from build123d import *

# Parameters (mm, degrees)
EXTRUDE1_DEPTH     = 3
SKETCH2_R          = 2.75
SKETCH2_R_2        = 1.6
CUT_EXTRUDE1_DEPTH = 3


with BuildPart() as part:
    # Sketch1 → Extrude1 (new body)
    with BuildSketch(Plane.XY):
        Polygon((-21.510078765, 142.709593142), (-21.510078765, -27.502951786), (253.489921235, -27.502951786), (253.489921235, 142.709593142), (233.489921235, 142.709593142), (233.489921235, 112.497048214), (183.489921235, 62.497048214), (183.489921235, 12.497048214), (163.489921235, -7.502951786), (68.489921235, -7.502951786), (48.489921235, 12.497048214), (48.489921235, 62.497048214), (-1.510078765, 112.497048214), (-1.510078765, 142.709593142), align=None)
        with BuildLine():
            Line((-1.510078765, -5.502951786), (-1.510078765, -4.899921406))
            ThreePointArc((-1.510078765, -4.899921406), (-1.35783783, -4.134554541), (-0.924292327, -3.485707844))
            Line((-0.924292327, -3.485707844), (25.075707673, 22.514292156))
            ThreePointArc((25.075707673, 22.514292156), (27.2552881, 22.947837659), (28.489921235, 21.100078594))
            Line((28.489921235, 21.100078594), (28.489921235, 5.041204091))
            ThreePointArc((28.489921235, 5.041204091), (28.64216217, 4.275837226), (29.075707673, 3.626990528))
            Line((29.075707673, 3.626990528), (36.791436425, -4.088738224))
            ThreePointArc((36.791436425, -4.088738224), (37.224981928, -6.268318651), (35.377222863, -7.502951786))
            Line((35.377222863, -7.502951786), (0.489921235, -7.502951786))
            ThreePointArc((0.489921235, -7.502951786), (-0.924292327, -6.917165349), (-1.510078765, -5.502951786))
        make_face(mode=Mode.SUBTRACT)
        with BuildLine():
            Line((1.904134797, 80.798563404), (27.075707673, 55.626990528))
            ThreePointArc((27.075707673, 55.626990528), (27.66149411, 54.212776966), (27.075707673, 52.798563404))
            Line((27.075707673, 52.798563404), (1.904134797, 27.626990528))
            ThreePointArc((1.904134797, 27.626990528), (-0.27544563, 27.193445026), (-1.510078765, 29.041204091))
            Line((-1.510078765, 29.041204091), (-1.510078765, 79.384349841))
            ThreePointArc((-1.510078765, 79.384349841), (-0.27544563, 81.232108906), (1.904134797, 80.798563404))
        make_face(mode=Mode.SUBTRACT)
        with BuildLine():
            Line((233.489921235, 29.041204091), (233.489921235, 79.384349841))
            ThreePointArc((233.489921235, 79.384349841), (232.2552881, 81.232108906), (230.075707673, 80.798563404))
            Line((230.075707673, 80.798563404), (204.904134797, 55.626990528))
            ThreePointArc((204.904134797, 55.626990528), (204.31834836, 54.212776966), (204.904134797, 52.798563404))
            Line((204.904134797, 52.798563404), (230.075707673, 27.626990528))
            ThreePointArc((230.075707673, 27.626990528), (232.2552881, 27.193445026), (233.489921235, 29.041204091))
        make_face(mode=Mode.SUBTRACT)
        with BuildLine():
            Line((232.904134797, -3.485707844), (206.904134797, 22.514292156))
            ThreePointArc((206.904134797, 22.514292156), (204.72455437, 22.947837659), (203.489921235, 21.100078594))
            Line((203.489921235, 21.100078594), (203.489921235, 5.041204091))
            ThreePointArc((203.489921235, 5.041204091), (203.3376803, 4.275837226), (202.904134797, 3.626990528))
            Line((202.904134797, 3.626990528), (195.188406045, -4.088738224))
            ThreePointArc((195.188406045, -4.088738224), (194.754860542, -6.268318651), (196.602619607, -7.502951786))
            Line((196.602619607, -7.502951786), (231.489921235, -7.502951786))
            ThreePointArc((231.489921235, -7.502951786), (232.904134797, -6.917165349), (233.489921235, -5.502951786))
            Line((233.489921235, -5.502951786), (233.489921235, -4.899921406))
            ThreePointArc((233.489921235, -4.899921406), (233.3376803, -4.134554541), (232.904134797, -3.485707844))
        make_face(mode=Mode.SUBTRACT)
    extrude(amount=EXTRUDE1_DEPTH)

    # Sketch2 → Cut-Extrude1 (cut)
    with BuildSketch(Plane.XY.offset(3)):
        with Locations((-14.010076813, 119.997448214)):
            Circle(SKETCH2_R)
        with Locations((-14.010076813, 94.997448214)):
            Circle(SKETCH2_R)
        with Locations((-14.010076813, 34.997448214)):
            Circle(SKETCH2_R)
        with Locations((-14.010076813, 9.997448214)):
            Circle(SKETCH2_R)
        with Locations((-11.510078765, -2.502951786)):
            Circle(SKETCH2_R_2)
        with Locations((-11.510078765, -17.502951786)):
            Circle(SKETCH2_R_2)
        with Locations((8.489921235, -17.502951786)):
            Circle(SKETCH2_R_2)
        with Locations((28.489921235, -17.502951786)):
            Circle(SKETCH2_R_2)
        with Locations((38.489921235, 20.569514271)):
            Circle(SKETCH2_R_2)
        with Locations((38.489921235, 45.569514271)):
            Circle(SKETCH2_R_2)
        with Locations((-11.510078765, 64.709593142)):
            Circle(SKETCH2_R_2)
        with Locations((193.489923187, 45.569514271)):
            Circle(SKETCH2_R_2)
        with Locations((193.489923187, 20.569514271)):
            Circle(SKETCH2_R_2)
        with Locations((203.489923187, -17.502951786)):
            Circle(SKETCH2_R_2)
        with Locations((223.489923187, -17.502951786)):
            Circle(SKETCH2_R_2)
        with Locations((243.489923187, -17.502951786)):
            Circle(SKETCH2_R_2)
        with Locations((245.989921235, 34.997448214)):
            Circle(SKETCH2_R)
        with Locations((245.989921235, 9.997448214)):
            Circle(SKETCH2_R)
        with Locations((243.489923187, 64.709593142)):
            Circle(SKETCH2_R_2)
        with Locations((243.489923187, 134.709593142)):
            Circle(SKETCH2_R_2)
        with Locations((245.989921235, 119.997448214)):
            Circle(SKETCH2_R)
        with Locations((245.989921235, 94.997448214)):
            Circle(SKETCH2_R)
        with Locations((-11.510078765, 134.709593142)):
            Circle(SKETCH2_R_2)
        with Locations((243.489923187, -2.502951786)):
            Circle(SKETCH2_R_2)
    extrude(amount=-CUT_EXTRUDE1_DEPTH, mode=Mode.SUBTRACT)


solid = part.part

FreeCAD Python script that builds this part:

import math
import FreeCAD as App
import Part
import Sketcher

V = App.Vector
Q = App.Units.Quantity

doc = App.newDocument("Part")
body = doc.addObject("PartDesign::Body", "Body")

sketch1 = body.newObject("Sketcher::SketchObject", "Sketch")
sketch1.AttachmentSupport = (doc.getObject("XY_Plane"), [""])
sketch1.MapMode = "FlatFace"
sketch1.addGeometry([
    Part.LineSegment(V(-21.5, 142.7, 0), V(-21.5, -27.5, 0)),
    Part.LineSegment(V(-21.5, -27.5, 0), V(253.5, -27.5, 0)),
    Part.LineSegment(V(253.5, -27.5, 0), V(253.5, 142.7, 0)),
    Part.LineSegment(V(253.5, 142.7, 0), V(233.5, 142.7, 0)),
    Part.LineSegment(V(233.5, 142.7, 0), V(233.5, 112.5, 0)),
    Part.LineSegment(V(233.5, 112.5, 0), V(183.5, 62.5, 0)),
    Part.LineSegment(V(183.5, 62.5, 0), V(183.5, 12.5, 0)),
    Part.LineSegment(V(183.5, 12.5, 0), V(163.5, -7.5, 0)),
    Part.LineSegment(V(163.5, -7.5, 0), V(68.5, -7.5, 0)),
    Part.LineSegment(V(68.5, -7.5, 0), V(48.5, 12.5, 0)),
    Part.LineSegment(V(48.5, 12.5, 0), V(48.5, 62.5, 0)),
    Part.LineSegment(V(48.5, 62.5, 0), V(-1.5, 112.5, 0)),
    Part.LineSegment(V(-1.5, 112.5, 0), V(-1.5, 142.7, 0)),
    Part.LineSegment(V(-1.5, 142.7, 0), V(-21.5, 142.7, 0)),
    Part.ArcOfCircle(Part.Circle(V(0.5, -5.5, 0), V(0, 0, 1), 2), math.radians(180), math.radians(270)),
    Part.LineSegment(V(-1.5, -5.5, 0), V(-1.5, -4.9, 0)),
    Part.ArcOfCircle(Part.Circle(V(0.5, -4.9, 0), V(0, 0, 1), 2), math.radians(135), math.radians(180)),
    Part.LineSegment(V(-0.9, -3.5, 0), V(25.1, 22.5, 0)),
    Part.ArcOfCircle(Part.Circle(V(26.5, 21.1, 0), V(0, 0, 1), 2), math.radians(0), math.radians(135)),
    Part.LineSegment(V(28.5, 21.1, 0), V(28.5, 5, 0)),
    Part.ArcOfCircle(Part.Circle(V(30.5, 5, 0), V(0, 0, 1), 2), math.radians(180), math.radians(225)),
    Part.LineSegment(V(29.1, 3.6, 0), V(36.8, -4.1, 0)),
    Part.ArcOfCircle(Part.Circle(V(35.4, -5.5, 0), V(0, 0, 1), 2), math.radians(-90), math.radians(45)),
    Part.LineSegment(V(35.4, -7.5, 0), V(0.5, -7.5, 0)),
    Part.LineSegment(V(206.9, 22.5, 0), V(232.9, -3.5, 0)),
    Part.ArcOfCircle(Part.Circle(V(231.5, -4.9, 0), V(0, 0, 1), 2), math.radians(0), math.radians(45)),
    Part.LineSegment(V(233.5, -4.9, 0), V(233.5, -5.5, 0)),
    Part.ArcOfCircle(Part.Circle(V(231.5, -5.5, 0), V(0, 0, 1), 2), math.radians(-90), math.radians(0)),
    Part.LineSegment(V(231.5, -7.5, 0), V(196.6, -7.5, 0)),
    Part.ArcOfCircle(Part.Circle(V(196.6, -5.5, 0), V(0, 0, 1), 2), math.radians(135), math.radians(270)),
    Part.LineSegment(V(195.2, -4.1, 0), V(202.9, 3.6, 0)),
    Part.ArcOfCircle(Part.Circle(V(201.5, 5, 0), V(0, 0, 1), 2), math.radians(-45), math.radians(0)),
    Part.LineSegment(V(203.5, 5, 0), V(203.5, 21.1, 0)),
    Part.ArcOfCircle(Part.Circle(V(205.5, 21.1, 0), V(0, 0, 1), 2), math.radians(45), math.radians(180)),
    Part.ArcOfCircle(Part.Circle(V(0.5, 79.4, 0), V(0, 0, 1), 2), math.radians(45), math.radians(180)),
    Part.LineSegment(V(1.9, 80.8, 0), V(27.1, 55.6, 0)),
    Part.ArcOfCircle(Part.Circle(V(25.7, 54.2, 0), V(0, 0, 1), 2), math.radians(-45), math.radians(45)),
    Part.LineSegment(V(27.1, 52.8, 0), V(1.9, 27.6, 0)),
    Part.ArcOfCircle(Part.Circle(V(0.5, 29, 0), V(0, 0, 1), 2), math.radians(180), math.radians(315)),
    Part.LineSegment(V(-1.5, 29, 0), V(-1.5, 79.4, 0)),
    Part.LineSegment(V(233.5, 79.4, 0), V(233.5, 29, 0)),
    Part.ArcOfCircle(Part.Circle(V(231.5, 29, 0), V(0, 0, 1), 2), math.radians(-135), math.radians(0)),
    Part.LineSegment(V(230.1, 27.6, 0), V(204.9, 52.8, 0)),
    Part.ArcOfCircle(Part.Circle(V(206.3, 54.2, 0), V(0, 0, 1), 2), math.radians(135), math.radians(225)),
    Part.LineSegment(V(204.9, 55.6, 0), V(230.1, 80.8, 0)),
    Part.ArcOfCircle(Part.Circle(V(231.5, 79.4, 0), V(0, 0, 1), 2), math.radians(0), math.radians(135)),
], False)
sketch1.addConstraint([
    Sketcher.Constraint("Coincident", 0, 2, 1, 1),
    Sketcher.Constraint("Coincident", 1, 2, 2, 1),
    Sketcher.Constraint("Coincident", 2, 2, 3, 1),
    Sketcher.Constraint("Coincident", 3, 2, 4, 1),
    Sketcher.Constraint("Coincident", 4, 2, 5, 1),
    Sketcher.Constraint("Coincident", 5, 2, 6, 1),
    Sketcher.Constraint("Coincident", 6, 2, 7, 1),
    Sketcher.Constraint("Coincident", 7, 2, 8, 1),
    Sketcher.Constraint("Coincident", 8, 2, 9, 1),
    Sketcher.Constraint("Coincident", 9, 2, 10, 1),
    Sketcher.Constraint("Coincident", 10, 2, 11, 1),
    Sketcher.Constraint("Coincident", 11, 2, 12, 1),
    Sketcher.Constraint("Coincident", 12, 2, 13, 1),
    Sketcher.Constraint("Coincident", 13, 2, 0, 1),
    Sketcher.Constraint("Tangent", 14, 1, 15, 1),
    Sketcher.Constraint("Tangent", 15, 2, 16, 2),
    Sketcher.Constraint("Tangent", 16, 1, 17, 1),
    Sketcher.Constraint("Tangent", 17, 2, 18, 2),
    Sketcher.Constraint("Tangent", 18, 1, 19, 1),
    Sketcher.Constraint("Tangent", 19, 2, 20, 1),
    Sketcher.Constraint("Tangent", 20, 2, 21, 1),
    Sketcher.Constraint("Tangent", 21, 2, 22, 2),
    Sketcher.Constraint("Tangent", 22, 1, 23, 1),
    Sketcher.Constraint("Tangent", 23, 2, 14, 2),
    Sketcher.Constraint("Tangent", 24, 2, 25, 2),
    Sketcher.Constraint("Tangent", 25, 1, 26, 1),
    Sketcher.Constraint("Tangent", 26, 2, 27, 2),
    Sketcher.Constraint("Tangent", 27, 1, 28, 1),
    Sketcher.Constraint("Tangent", 28, 2, 29, 2),
    Sketcher.Constraint("Tangent", 29, 1, 30, 1),
    Sketcher.Constraint("Tangent", 30, 2, 31, 1),
    Sketcher.Constraint("Tangent", 31, 2, 32, 1),
    Sketcher.Constraint("Tangent", 32, 2, 33, 2),
    Sketcher.Constraint("Tangent", 33, 1, 24, 1),
    Sketcher.Constraint("Tangent", 34, 1, 35, 1),
    Sketcher.Constraint("Tangent", 35, 2, 36, 2),
    Sketcher.Constraint("Tangent", 36, 1, 37, 1),
    Sketcher.Constraint("Tangent", 37, 2, 38, 2),
    Sketcher.Constraint("Tangent", 38, 1, 39, 1),
    Sketcher.Constraint("Tangent", 39, 2, 34, 2),
    Sketcher.Constraint("Tangent", 40, 2, 41, 2),
    Sketcher.Constraint("Tangent", 41, 1, 42, 1),
    Sketcher.Constraint("Tangent", 42, 2, 43, 2),
    Sketcher.Constraint("Tangent", 43, 1, 44, 1),
    Sketcher.Constraint("Tangent", 44, 2, 45, 2),
    Sketcher.Constraint("Tangent", 45, 1, 40, 1),
    Sketcher.Constraint("Vertical", 0),
    Sketcher.Constraint("Horizontal", 1),
    Sketcher.Constraint("Vertical", 2),
    Sketcher.Constraint("Horizontal", 3),
    Sketcher.Constraint("Vertical", 4),
    Sketcher.Constraint("Vertical", 6),
    Sketcher.Constraint("Horizontal", 8),
    Sketcher.Constraint("Vertical", 10),
    Sketcher.Constraint("Vertical", 12),
    Sketcher.Constraint("Horizontal", 13),
    Sketcher.Constraint("Vertical", 15),
    Sketcher.Constraint("Vertical", 19),
    Sketcher.Constraint("Horizontal", 23),
    Sketcher.Constraint("Vertical", 26),
    Sketcher.Constraint("Horizontal", 28),
    Sketcher.Constraint("Vertical", 32),
    Sketcher.Constraint("Vertical", 39),
    Sketcher.Constraint("Vertical", 40),
    Sketcher.Constraint("Equal", 14, 16),
    Sketcher.Constraint("Equal", 16, 18),
    Sketcher.Constraint("Equal", 18, 20),
    Sketcher.Constraint("Equal", 20, 22),
    Sketcher.Constraint("Equal", 22, 25),
    Sketcher.Constraint("Equal", 25, 27),
    Sketcher.Constraint("Equal", 27, 29),
    Sketcher.Constraint("Equal", 29, 31),
    Sketcher.Constraint("Equal", 31, 33),
    Sketcher.Constraint("Equal", 33, 34),
    Sketcher.Constraint("Equal", 34, 36),
    Sketcher.Constraint("Equal", 36, 38),
    Sketcher.Constraint("Equal", 38, 41),
    Sketcher.Constraint("Equal", 41, 43),
    Sketcher.Constraint("Equal", 43, 45),
    Sketcher.Constraint("Parallel", 5, 7),
    Sketcher.Constraint("Perpendicular", 7, 9),
    Sketcher.Constraint("Parallel", 9, 11),
    Sketcher.Constraint("Perpendicular", 11, 17),
    Sketcher.Constraint("Perpendicular", 17, 21),
    Sketcher.Constraint("Parallel", 21, 24),
    Sketcher.Constraint("Perpendicular", 24, 30),
    Sketcher.Constraint("Perpendicular", 30, 35),
    Sketcher.Constraint("Perpendicular", 35, 37),
    Sketcher.Constraint("Perpendicular", 37, 42),
    Sketcher.Constraint("Perpendicular", 42, 44),
    Sketcher.Constraint("Horizontal", 16, 3, 25, 3),
    Sketcher.Constraint("Horizontal", 22, 3, 27, 3),
    Sketcher.Constraint("Horizontal", 20, 3, 31, 3),
    Sketcher.Constraint("Horizontal", 18, 3, 33, 3),
    Sketcher.Constraint("Horizontal", 38, 3, 41, 3),
    Sketcher.Constraint("Horizontal", 36, 3, 43, 3),
    Sketcher.Constraint("Horizontal", 34, 3, 45, 3),
    Sketcher.Constraint("Horizontal", 6, 2, 9, 2),
    Sketcher.Constraint("Horizontal", 5, 2, 10, 2),
    Sketcher.Constraint("Horizontal", 4, 2, 11, 2),
    Sketcher.Constraint("Horizontal", 3, 2, 12, 2),
    Sketcher.Constraint("Horizontal", 8, 2, 22, 1),
    Sketcher.Constraint("Vertical", 16, 3, 34, 3),
    Sketcher.Constraint("Vertical", 27, 3, 41, 3),
    Sketcher.Constraint("Vertical", 12, 2, 14, 1),
    Sketcher.Constraint("Vertical", 4, 2, 25, 1),
    Sketcher.Constraint("Equal", 3, 13),
    Sketcher.Constraint("Radius", 14, Q("2 mm")),
    Sketcher.Constraint("DistanceX", 1, 1, 1, 2, Q("275 mm")),
    Sketcher.Constraint("DistanceX", 3, 2, 3, 1, Q("20 mm")),
    Sketcher.Constraint("DistanceX", 8, 2, 8, 1, Q("95 mm")),
    Sketcher.Constraint("DistanceY", 6, 2, 6, 1, Q("50 mm")),
    Sketcher.Constraint("DistanceX", 23, 2, 23, 1, Q("34.887302 mm")),
    Sketcher.Constraint("DistanceY", 15, 1, 15, 2, Q("0.60303 mm")),
    Sketcher.Constraint("Distance", 5, Q("70.710678 mm")),
    Sketcher.Constraint("Distance", 21, Q("10.911688 mm")),
    Sketcher.Constraint("Distance", 35, Q("35.59798 mm")),
    Sketcher.Constraint("DistanceY", 0, 2, 0, 1, Q("170.212545 mm")),
    Sketcher.Constraint("DistanceY", 4, 2, 4, 1, Q("30.212545 mm")),
    Sketcher.Constraint("DistanceX", -1, 1, 14, 3, Q("0.489921 mm")),
    Sketcher.Constraint("DistanceY", 14, 3, -1, 1, Q("5.502952 mm")),
    Sketcher.Constraint("DistanceY", -1, 1, 34, 3, Q("79.38435 mm")),
])
pad1 = body.newObject("PartDesign::Pad", "Pad")
pad1.Profile = sketch1
pad1.Length = 3

sketch2 = body.newObject("Sketcher::SketchObject", "Sketch001")
sketch2.AttachmentSupport = (doc.getObject("XY_Plane"), [""])
sketch2.MapMode = "FlatFace"
sketch2.AttachmentOffset = App.Placement(V(0, 0, 3), App.Rotation())
sketch2.addGeometry([
    Part.Circle(V(-14, 120, 0), V(0, 0, 1), 2.8),
    Part.Circle(V(-14, 95, 0), V(0, 0, 1), 2.8),
    Part.Circle(V(-14, 35, 0), V(0, 0, 1), 2.8),
    Part.Circle(V(-14, 10, 0), V(0, 0, 1), 2.8),
    Part.Circle(V(-11.5, -2.5, 0), V(0, 0, 1), 1.6),
    Part.Circle(V(-11.5, -17.5, 0), V(0, 0, 1), 1.6),
    Part.Circle(V(8.5, -17.5, 0), V(0, 0, 1), 1.6),
    Part.Circle(V(28.5, -17.5, 0), V(0, 0, 1), 1.6),
    Part.Circle(V(38.5, 20.6, 0), V(0, 0, 1), 1.6),
    Part.Circle(V(38.5, 45.6, 0), V(0, 0, 1), 1.6),
    Part.Circle(V(-11.5, 64.7, 0), V(0, 0, 1), 1.6),
    Part.Circle(V(193.5, 45.6, 0), V(0, 0, 1), 1.6),
    Part.Circle(V(193.5, 20.6, 0), V(0, 0, 1), 1.6),
    Part.Circle(V(203.5, -17.5, 0), V(0, 0, 1), 1.6),
    Part.Circle(V(223.5, -17.5, 0), V(0, 0, 1), 1.6),
    Part.Circle(V(243.5, -17.5, 0), V(0, 0, 1), 1.6),
    Part.Circle(V(246, 35, 0), V(0, 0, 1), 2.8),
    Part.Circle(V(246, 10, 0), V(0, 0, 1), 2.8),
    Part.Circle(V(243.5, 64.7, 0), V(0, 0, 1), 1.6),
    Part.Circle(V(243.5, 134.7, 0), V(0, 0, 1), 1.6),
    Part.Circle(V(246, 120, 0), V(0, 0, 1), 2.8),
    Part.Circle(V(246, 95, 0), V(0, 0, 1), 2.8),
    Part.Circle(V(-11.5, 134.7, 0), V(0, 0, 1), 1.6),
    Part.Circle(V(243.5, -2.5, 0), V(0, 0, 1), 1.6),
], False)
sketch2.addConstraint([
    Sketcher.Constraint("Equal", 0, 1),
    Sketcher.Constraint("Equal", 1, 2),
    Sketcher.Constraint("Equal", 2, 3),
    Sketcher.Constraint("Equal", 4, 5),
    Sketcher.Constraint("Equal", 5, 6),
    Sketcher.Constraint("Equal", 6, 7),
    Sketcher.Constraint("Equal", 7, 8),
    Sketcher.Constraint("Equal", 8, 9),
    Sketcher.Constraint("Equal", 9, 10),
    Sketcher.Constraint("Equal", 10, 11),
    Sketcher.Constraint("Equal", 11, 12),
    Sketcher.Constraint("Equal", 12, 13),
    Sketcher.Constraint("Equal", 13, 14),
    Sketcher.Constraint("Equal", 14, 15),
    Sketcher.Constraint("Equal", 3, 16),
    Sketcher.Constraint("Equal", 16, 17),
    Sketcher.Constraint("Equal", 15, 18),
    Sketcher.Constraint("Equal", 18, 19),
    Sketcher.Constraint("Equal", 17, 20),
    Sketcher.Constraint("Equal", 20, 21),
    Sketcher.Constraint("Equal", 19, 22),
    Sketcher.Constraint("Equal", 22, 23),
    Sketcher.Constraint("Horizontal", 5, 3, 6, 3),
    Sketcher.Constraint("Horizontal", 6, 3, 7, 3),
    Sketcher.Constraint("Horizontal", 9, 3, 11, 3),
    Sketcher.Constraint("Horizontal", 8, 3, 12, 3),
    Sketcher.Constraint("Horizontal", 7, 3, 13, 3),
    Sketcher.Constraint("Horizontal", 13, 3, 14, 3),
    Sketcher.Constraint("Horizontal", 14, 3, 15, 3),
    Sketcher.Constraint("Horizontal", 2, 3, 16, 3),
    Sketcher.Constraint("Horizontal", 3, 3, 17, 3),
    Sketcher.Constraint("Horizontal", 10, 3, 18, 3),
    Sketcher.Constraint("Horizontal", 0, 3, 20, 3),
    Sketcher.Constraint("Horizontal", 1, 3, 21, 3),
    Sketcher.Constraint("Horizontal", 19, 3, 22, 3),
    Sketcher.Constraint("Horizontal", 4, 3, 23, 3),
    Sketcher.Constraint("Vertical", 0, 3, 1, 3),
    Sketcher.Constraint("Vertical", 1, 3, 2, 3),
    Sketcher.Constraint("Vertical", 2, 3, 3, 3),
    Sketcher.Constraint("Vertical", 4, 3, 5, 3),
    Sketcher.Constraint("Vertical", 8, 3, 9, 3),
    Sketcher.Constraint("Vertical", 5, 3, 10, 3),
    Sketcher.Constraint("Vertical", 11, 3, 12, 3),
    Sketcher.Constraint("Vertical", 16, 3, 17, 3),
    Sketcher.Constraint("Vertical", 15, 3, 18, 3),
    Sketcher.Constraint("Vertical", 18, 3, 19, 3),
    Sketcher.Constraint("Vertical", 17, 3, 20, 3),
    Sketcher.Constraint("Vertical", 20, 3, 21, 3),
    Sketcher.Constraint("Vertical", 10, 3, 22, 3),
    Sketcher.Constraint("Vertical", 19, 3, 23, 3),
    Sketcher.Constraint("Diameter", 0, Q("5.5 mm")),
    Sketcher.Constraint("Diameter", 4, Q("3.2 mm")),
    Sketcher.Constraint("DistanceY", 1, 3, 0, 3, Q("25 mm")),
    Sketcher.Constraint("DistanceY", 2, 3, 1, 3, Q("60 mm")),
    Sketcher.Constraint("DistanceY", 3, 3, 2, 3, Q("25 mm")),
    Sketcher.Constraint("DistanceY", 5, 3, 4, 3, Q("15 mm")),
    Sketcher.Constraint("DistanceX", 5, 3, 6, 3, Q("20 mm")),
    Sketcher.Constraint("DistanceX", 6, 3, 7, 3, Q("20 mm")),
    Sketcher.Constraint("DistanceX", 7, 3, 8, 3, Q("10 mm")),
    Sketcher.Constraint("DistanceY", 8, 3, 9, 3, Q("25 mm")),
    Sketcher.Constraint("DistanceX", 9, 3, 11, 3, Q("155.000002 mm")),
    Sketcher.Constraint("DistanceX", 12, 3, 13, 3, Q("10 mm")),
    Sketcher.Constraint("DistanceX", 13, 3, 14, 3, Q("20 mm")),
    Sketcher.Constraint("DistanceX", 14, 3, 15, 3, Q("20 mm")),
    Sketcher.Constraint("DistanceY", 18, 3, 19, 3, Q("70 mm")),
    Sketcher.Constraint("DistanceX", 3, 3, 4, 3, Q("2.499998 mm")),
    Sketcher.Constraint("DistanceX", 15, 3, 16, 3, Q("2.499998 mm")),
    Sketcher.Constraint("DistanceY", 4, 3, 3, 3, Q("12.5004 mm")),
    Sketcher.Constraint("DistanceY", -1, 1, 0, 3, Q("119.997448 mm")),
    Sketcher.Constraint("DistanceX", 4, 3, -1, 1, Q("11.510079 mm")),
    Sketcher.Constraint("DistanceY", 9, 3, 10, 3, Q("19.140079 mm")),
    Sketcher.Constraint("DistanceY", -1, 1, 8, 3, Q("20.569514 mm")),
])
pocket1 = body.newObject("PartDesign::Pocket", "Pocket")
pocket1.Profile = sketch2
pocket1.Length = 3

doc.recompute()
